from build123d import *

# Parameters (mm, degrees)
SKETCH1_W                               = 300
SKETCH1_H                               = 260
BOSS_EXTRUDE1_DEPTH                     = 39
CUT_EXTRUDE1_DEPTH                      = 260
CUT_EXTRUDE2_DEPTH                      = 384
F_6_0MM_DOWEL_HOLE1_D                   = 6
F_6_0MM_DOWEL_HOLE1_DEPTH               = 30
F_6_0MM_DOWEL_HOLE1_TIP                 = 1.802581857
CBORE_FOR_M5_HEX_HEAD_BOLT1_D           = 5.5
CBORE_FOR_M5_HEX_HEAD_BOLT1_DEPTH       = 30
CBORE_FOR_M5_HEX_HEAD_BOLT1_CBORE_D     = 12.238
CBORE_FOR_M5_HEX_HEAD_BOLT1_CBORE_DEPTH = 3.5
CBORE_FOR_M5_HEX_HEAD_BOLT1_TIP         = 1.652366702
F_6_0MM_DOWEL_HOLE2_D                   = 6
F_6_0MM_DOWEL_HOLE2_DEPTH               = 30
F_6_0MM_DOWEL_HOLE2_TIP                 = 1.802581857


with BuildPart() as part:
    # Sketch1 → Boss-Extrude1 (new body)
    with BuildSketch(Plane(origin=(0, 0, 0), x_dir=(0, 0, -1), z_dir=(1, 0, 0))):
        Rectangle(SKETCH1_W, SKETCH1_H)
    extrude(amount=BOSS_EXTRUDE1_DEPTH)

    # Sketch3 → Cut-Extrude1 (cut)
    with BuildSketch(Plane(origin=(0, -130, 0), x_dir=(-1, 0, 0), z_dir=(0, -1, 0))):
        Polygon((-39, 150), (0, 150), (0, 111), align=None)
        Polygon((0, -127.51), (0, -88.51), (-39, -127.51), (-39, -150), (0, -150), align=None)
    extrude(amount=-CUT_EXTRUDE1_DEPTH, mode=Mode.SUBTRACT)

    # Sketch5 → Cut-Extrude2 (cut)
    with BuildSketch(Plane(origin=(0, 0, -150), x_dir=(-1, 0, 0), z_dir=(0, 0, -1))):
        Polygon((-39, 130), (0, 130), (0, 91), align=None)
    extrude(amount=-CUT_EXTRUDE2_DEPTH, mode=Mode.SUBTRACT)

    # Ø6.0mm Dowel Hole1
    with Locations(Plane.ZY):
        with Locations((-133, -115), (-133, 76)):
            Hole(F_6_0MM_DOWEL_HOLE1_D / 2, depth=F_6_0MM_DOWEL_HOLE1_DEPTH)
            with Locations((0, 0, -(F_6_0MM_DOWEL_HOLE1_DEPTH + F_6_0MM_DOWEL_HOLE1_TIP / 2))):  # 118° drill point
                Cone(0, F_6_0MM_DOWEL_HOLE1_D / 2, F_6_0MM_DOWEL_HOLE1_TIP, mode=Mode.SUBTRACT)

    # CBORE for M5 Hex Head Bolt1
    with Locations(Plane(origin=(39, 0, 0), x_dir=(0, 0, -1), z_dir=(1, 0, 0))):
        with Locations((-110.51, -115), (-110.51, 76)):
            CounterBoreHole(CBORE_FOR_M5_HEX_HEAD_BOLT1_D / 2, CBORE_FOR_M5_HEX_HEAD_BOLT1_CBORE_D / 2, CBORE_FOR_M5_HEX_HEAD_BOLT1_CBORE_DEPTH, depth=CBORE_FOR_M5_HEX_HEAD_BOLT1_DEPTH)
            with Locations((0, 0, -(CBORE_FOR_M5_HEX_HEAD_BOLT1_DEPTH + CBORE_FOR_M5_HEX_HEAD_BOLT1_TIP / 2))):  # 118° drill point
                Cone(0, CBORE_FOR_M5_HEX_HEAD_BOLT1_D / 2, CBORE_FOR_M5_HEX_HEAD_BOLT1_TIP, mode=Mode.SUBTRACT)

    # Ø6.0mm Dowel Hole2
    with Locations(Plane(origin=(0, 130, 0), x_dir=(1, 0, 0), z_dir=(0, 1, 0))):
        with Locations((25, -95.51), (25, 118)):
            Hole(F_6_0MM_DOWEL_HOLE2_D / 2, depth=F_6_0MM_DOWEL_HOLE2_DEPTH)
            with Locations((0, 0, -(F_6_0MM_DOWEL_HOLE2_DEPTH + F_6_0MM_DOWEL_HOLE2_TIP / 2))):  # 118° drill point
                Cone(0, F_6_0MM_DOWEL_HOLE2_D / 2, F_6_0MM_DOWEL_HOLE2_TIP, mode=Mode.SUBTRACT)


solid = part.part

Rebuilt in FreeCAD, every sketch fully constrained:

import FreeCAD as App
import Part
import Sketcher
Q = App.Units.Quantity

doc = App.newDocument("Part")
body = doc.addObject("PartDesign::Body", "Body")

sketch1 = body.newObject("Sketcher::SketchObject", "Sketch")
sketch1.AttachmentSupport = (doc.getObject("YZ_Plane"), [""])
sketch1.MapMode = "FlatFace"
sketch1.addGeometry([
    Part.LineSegment(App.Vector(130, 150, 0), App.Vector(-130, 150, 0)),
    Part.LineSegment(App.Vector(-130, 150, 0), App.Vector(-130, -150, 0)),
    Part.LineSegment(App.Vector(-130, -150, 0), App.Vector(130, -150, 0)),
    Part.LineSegment(App.Vector(130, -150, 0), App.Vector(130, 150, 0)),
], False)
sketch1.addConstraint([
    Sketcher.Constraint("Coincident", 0, 2, 1, 1),
    Sketcher.Constraint("Coincident", 1, 2, 2, 1),
    Sketcher.Constraint("Coincident", 2, 2, 3, 1),
    Sketcher.Constraint("Coincident", 3, 2, 0, 1),
    Sketcher.Constraint("Horizontal", 0),
    Sketcher.Constraint("Vertical", 1),
    Sketcher.Constraint("Horizontal", 2),
    Sketcher.Constraint("Vertical", 3),
    Sketcher.Constraint("Symmetric", 0, 2, 2, 2, -1, 1),
    Sketcher.Constraint("DistanceX", 0, 2, 0, 1, Q("260 mm")),
    Sketcher.Constraint("DistanceY", 1, 2, 1, 1, Q("300 mm")),
])
pad1 = body.newObject("PartDesign::Pad", "Pad")
pad1.Profile = sketch1
pad1.Length = 39

sketch2 = body.newObject("Sketcher::SketchObject", "Sketch001")
sketch2.AttachmentSupport = (doc.getObject("XZ_Plane"), [""])
sketch2.MapMode = "FlatFace"
sketch2.AttachmentOffset = App.Placement(App.Vector(0, 0, 130), App.Rotation())
sketch2.addGeometry([
    Part.LineSegment(App.Vector(0, -150, 0), App.Vector(39, -150, 0)),
    Part.LineSegment(App.Vector(39, -150, 0), App.Vector(0, -111, 0)),
    Part.LineSegment(App.Vector(0, -111, 0), App.Vector(0, -150, 0)),
    Part.LineSegment(App.Vector(0, 88.51, 0), App.Vector(39, 127.51, 0)),
    Part.LineSegment(App.Vector(39, 127.51, 0), App.Vector(39, 150, 0)),
    Part.LineSegment(App.Vector(39, 150, 0), App.Vector(0, 150, 0)),
    Part.LineSegment(App.Vector(0, 150, 0), App.Vector(0, 88.51, 0)),
], False)
sketch2.addConstraint([
    Sketcher.Constraint("Coincident", 0, 2, 1, 1),
    Sketcher.Constraint("Coincident", 1, 2, 2, 1),
    Sketcher.Constraint("Coincident", 2, 2, 0, 1),
    Sketcher.Constraint("Coincident", 3, 2, 4, 1),
    Sketcher.Constraint("Coincident", 4, 2, 5, 1),
    Sketcher.Constraint("Coincident", 5, 2, 6, 1),
    Sketcher.Constraint("Coincident", 6, 2, 3, 1),
    Sketcher.Constraint("Horizontal", 0),
    Sketcher.Constraint("Vertical", 2),
    Sketcher.Constraint("Vertical", 4),
    Sketcher.Constraint("Horizontal", 5),
    Sketcher.Constraint("Vertical", 6),
    Sketcher.Constraint("Symmetric", 2, 2, 5, 2, -1, 1),
    Sketcher.Constraint("PointOnObject", 1, 2, -2),
    Sketcher.Constraint("Perpendicular", 1, 3),
    Sketcher.Constraint("Vertical", 0, 2, 3, 2),
    Sketcher.Constraint("Equal", 5, 2),
    Sketcher.Constraint("DistanceX", 0, 1, 0, 2, Q("39 mm")),
    Sketcher.Constraint("DistanceY", 0, 2, -1, 1, Q("150 mm")),
    Sketcher.Constraint("DistanceY", 4, 1, 4, 2, Q("22.49 mm")),
])
pocket1 = body.newObject("PartDesign::Pocket", "Pocket")
pocket1.Profile = sketch2
pocket1.Length = 260

sketch3 = body.newObject("Sketcher::SketchObject", "Sketch002")
sketch3.AttachmentSupport = (doc.getObject("XY_Plane"), [""])
sketch3.MapMode = "FlatFace"
sketch3.AttachmentOffset = App.Placement(App.Vector(0, 0, -150), App.Rotation())
sketch3.addGeometry([
    Part.LineSegment(App.Vector(0, 130, 0), App.Vector(39, 130, 0)),
    Part.LineSegment(App.Vector(39, 130, 0), App.Vector(0, 91, 0)),
    Part.LineSegment(App.Vector(0, 91, 0), App.Vector(0, 130, 0)),
], False)
sketch3.addConstraint([
    Sketcher.Constraint("Coincident", 0, 2, 1, 1),
    Sketcher.Constraint("Coincident", 1, 2, 2, 1),
    Sketcher.Constraint("Coincident", 2, 2, 0, 1),
    Sketcher.Constraint("Horizontal", 0),
    Sketcher.Constraint("Vertical", 2),
    Sketcher.Constraint("PointOnObject", 1, 2, -2),
    Sketcher.Constraint("Equal", 0, 2),
    Sketcher.Constraint("DistanceX", 0, 1, 0, 2, Q("39 mm")),
    Sketcher.Constraint("DistanceY", -1, 1, 0, 2, Q("130 mm")),
])
pocket2 = body.newObject("PartDesign::Pocket", "Pocket001")
pocket2.Profile = sketch3
pocket2.Length = 384
pocket2.Reversed = True

sketch4 = body.newObject("Sketcher::SketchObject", "Sketch003")
sketch4.AttachmentSupport = (doc.getObject("YZ_Plane"), [""])
sketch4.MapMode = "FlatFace"
sketch4.addGeometry([
    Part.Circle(App.Vector(-115, -133, 0), App.Vector(0, 0, 1), 3),
    Part.Circle(App.Vector(76, -133, 0), App.Vector(0, 0, 1), 3),
], False)
sketch4.addConstraint([
    Sketcher.Constraint("Equal", 0, 1),
    Sketcher.Constraint("Horizontal", 0, 3, 1, 3),
    Sketcher.Constraint("Diameter", 0, Q("6 mm")),
    Sketcher.Constraint("DistanceX", 0, 3, -1, 1, Q("115 mm")),
    Sketcher.Constraint("DistanceY", 0, 3, -1, 1, Q("133 mm")),
    Sketcher.Constraint("DistanceX", -1, 1, 1, 3, Q("76 mm")),
])
doc.recompute()
hole = body.newObject("PartDesign::Hole", "Hole")
hole.Profile = sketch4
hole.ThreadType = "None"
hole.Diameter = 6
hole.DepthType = "Dimension"
hole.Depth = 30
hole.DrillPoint = "Angled"
hole.DrillPointAngle = 118
hole.Reversed = True

sketch5 = body.newObject("Sketcher::SketchObject", "Sketch004")
sketch5.AttachmentSupport = (doc.getObject("YZ_Plane"), [""])
sketch5.MapMode = "FlatFace"
sketch5.AttachmentOffset = App.Placement(App.Vector(0, 0, 39), App.Rotation())
sketch5.addGeometry([
    Part.Circle(App.Vector(-115, 110.51, 0), App.Vector(0, 0, 1), 2.75),
    Part.Circle(App.Vector(76, 110.51, 0), App.Vector(0, 0, 1), 2.75),
], False)
sketch5.addConstraint([
    Sketcher.Constraint("Equal", 0, 1),
    Sketcher.Constraint("Horizontal", 0, 3, 1, 3),
    Sketcher.Constraint("Diameter", 0, Q("5.5 mm")),
    Sketcher.Constraint("DistanceX", 0, 3, -1, 1, Q("115 mm")),
    Sketcher.Constraint("DistanceX", -1, 1, 1, 3, Q("76 mm")),
    Sketcher.Constraint("DistanceY", -1, 1, 0, 3, Q("110.51 mm")),
])
doc.recompute()
hole2 = body.newObject("PartDesign::Hole", "Hole001")
hole2.Profile = sketch5
hole2.ThreadType = "None"
hole2.Diameter = 5.5
hole2.DepthType = "Dimension"
hole2.Depth = 30
hole2.DrillPoint = "Angled"
hole2.DrillPointAngle = 118
hole2.HoleCutType = "Counterbore"
hole2.HoleCutDiameter = 12.238
hole2.HoleCutDepth = 3.5

sketch6 = body.newObject("Sketcher::SketchObject", "Sketch005")
sketch6.AttachmentSupport = (doc.getObject("XZ_Plane"), [""])
sketch6.MapMode = "FlatFace"
sketch6.AttachmentOffset = App.Placement(App.Vector(0, 0, -130), App.Rotation())
sketch6.addGeometry([
    Part.Circle(App.Vector(25, 95.51, 0), App.Vector(0, 0, 1), 3),
    Part.Circle(App.Vector(25, -118, 0), App.Vector(0, 0, 1), 3),
], False)
sketch6.addConstraint([
    Sketcher.Constraint("Equal", 0, 1),
    Sketcher.Constraint("Vertical", 0, 3, 1, 3),
    Sketcher.Constraint("Diameter", 0, Q("6 mm")),
    Sketcher.Constraint("DistanceX", -1, 1, 0, 3, Q("25 mm")),
    Sketcher.Constraint("DistanceY", 1, 3, -1, 1, Q("118 mm")),
    Sketcher.Constraint("DistanceY", -1, 1, 0, 3, Q("95.51 mm")),
])
doc.recompute()
hole3 = body.newObject("PartDesign::Hole", "Hole002")
hole3.Profile = sketch6
hole3.ThreadType = "None"
hole3.Diameter = 6
hole3.DepthType = "Dimension"
hole3.Depth = 30
hole3.DrillPoint = "Angled"
hole3.DrillPointAngle = 118
hole3.Reversed = True

doc.recompute()
